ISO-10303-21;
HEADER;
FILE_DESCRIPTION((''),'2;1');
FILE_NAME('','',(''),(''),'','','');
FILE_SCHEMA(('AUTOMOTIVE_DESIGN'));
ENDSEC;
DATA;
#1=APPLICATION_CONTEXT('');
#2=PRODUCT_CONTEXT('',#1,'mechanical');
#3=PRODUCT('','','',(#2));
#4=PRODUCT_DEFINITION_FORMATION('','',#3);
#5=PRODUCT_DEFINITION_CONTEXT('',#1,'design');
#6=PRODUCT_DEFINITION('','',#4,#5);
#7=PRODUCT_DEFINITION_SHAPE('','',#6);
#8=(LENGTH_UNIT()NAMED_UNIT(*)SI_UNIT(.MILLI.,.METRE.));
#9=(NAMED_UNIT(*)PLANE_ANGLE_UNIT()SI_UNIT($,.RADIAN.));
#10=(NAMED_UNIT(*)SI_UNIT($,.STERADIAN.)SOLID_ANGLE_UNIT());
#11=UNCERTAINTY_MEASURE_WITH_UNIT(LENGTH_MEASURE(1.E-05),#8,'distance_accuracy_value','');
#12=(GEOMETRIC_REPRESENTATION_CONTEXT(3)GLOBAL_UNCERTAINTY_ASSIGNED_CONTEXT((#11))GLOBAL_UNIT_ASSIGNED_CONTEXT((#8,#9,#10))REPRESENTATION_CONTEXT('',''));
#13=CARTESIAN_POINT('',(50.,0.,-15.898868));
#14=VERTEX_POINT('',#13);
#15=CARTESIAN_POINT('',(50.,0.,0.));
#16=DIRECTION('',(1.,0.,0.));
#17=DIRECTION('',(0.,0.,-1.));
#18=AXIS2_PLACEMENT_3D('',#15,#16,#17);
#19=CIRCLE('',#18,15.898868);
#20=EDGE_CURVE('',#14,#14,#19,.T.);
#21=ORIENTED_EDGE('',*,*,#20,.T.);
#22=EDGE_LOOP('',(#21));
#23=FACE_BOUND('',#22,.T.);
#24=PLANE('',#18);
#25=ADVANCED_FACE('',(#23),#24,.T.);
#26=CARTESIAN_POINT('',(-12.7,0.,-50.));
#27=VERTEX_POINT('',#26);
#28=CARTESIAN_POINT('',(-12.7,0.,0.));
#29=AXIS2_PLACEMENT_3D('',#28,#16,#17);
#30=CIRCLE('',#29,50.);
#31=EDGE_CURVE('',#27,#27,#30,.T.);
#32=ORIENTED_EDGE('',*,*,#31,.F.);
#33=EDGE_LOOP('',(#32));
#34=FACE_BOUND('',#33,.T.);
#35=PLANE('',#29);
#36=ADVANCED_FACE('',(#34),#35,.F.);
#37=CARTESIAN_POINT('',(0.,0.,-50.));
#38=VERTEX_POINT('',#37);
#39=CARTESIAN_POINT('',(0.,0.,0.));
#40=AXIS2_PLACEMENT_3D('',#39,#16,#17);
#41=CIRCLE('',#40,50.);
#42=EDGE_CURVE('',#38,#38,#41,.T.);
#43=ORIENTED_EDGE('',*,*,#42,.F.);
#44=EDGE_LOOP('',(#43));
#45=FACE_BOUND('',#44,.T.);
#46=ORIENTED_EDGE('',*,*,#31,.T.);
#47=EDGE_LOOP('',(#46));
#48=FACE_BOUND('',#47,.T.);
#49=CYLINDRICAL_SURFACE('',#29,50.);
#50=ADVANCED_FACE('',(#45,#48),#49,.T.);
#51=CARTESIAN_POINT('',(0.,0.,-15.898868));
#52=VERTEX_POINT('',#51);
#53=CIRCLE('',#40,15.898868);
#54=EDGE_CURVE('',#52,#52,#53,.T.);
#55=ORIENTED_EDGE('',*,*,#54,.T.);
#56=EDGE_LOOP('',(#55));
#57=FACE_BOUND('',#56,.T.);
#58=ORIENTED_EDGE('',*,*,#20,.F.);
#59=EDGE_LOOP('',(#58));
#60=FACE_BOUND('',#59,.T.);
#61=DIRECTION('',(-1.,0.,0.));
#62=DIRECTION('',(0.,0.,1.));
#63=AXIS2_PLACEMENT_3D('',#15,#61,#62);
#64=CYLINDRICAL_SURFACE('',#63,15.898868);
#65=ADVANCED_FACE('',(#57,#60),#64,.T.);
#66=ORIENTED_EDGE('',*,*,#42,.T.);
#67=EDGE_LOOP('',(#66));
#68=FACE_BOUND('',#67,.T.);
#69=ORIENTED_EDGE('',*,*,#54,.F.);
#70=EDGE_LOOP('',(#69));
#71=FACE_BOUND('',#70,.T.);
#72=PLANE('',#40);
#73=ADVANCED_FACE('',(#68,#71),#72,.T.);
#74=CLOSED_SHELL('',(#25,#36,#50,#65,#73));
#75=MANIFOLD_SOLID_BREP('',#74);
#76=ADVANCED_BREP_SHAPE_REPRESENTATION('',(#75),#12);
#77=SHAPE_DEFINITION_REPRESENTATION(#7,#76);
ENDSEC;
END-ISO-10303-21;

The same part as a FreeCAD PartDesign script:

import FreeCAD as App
import Part
import Sketcher
Q = App.Units.Quantity

doc = App.newDocument("Part")
body = doc.addObject("PartDesign::Body", "Body")

sketch1 = doc.addObject("Sketcher::SketchObject", "Sketch")
body.addObject(sketch1)
sketch1.AttachmentSupport = (doc.YZ_Plane, [""])
sketch1.MapMode = "FlatFace"
sketch1.addGeometry(Part.Circle(App.Vector(0, 0, 0), App.Vector(0, 0, 1), 50), False)
sketch1.addConstraint([
    Sketcher.Constraint("Coincident", 0, 3, -1, 1),
    Sketcher.Constraint("Diameter", 0, Q("100 mm")),
])
pad1 = doc.addObject("PartDesign::Pad", "Pad")
body.addObject(pad1)
pad1.Profile = sketch1
pad1.Length = 12.7
pad1.Reversed = True

sketch2 = doc.addObject("Sketcher::SketchObject", "Sketch001")
body.addObject(sketch2)
sketch2.AttachmentSupport = (doc.YZ_Plane, [""])
sketch2.MapMode = "FlatFace"
sketch2.addGeometry(Part.Circle(App.Vector(0, 0, 0), App.Vector(0, 0, 1), 16), False)
sketch2.addConstraint([
    Sketcher.Constraint("Coincident", 0, 3, -1, 1),
    Sketcher.Constraint("Diameter", 0, Q("31.797737 mm")),
])
pad2 = doc.addObject("PartDesign::Pad", "Pad001")
body.addObject(pad2)
pad2.Profile = sketch2
pad2.Length = 50

doc.recompute()
